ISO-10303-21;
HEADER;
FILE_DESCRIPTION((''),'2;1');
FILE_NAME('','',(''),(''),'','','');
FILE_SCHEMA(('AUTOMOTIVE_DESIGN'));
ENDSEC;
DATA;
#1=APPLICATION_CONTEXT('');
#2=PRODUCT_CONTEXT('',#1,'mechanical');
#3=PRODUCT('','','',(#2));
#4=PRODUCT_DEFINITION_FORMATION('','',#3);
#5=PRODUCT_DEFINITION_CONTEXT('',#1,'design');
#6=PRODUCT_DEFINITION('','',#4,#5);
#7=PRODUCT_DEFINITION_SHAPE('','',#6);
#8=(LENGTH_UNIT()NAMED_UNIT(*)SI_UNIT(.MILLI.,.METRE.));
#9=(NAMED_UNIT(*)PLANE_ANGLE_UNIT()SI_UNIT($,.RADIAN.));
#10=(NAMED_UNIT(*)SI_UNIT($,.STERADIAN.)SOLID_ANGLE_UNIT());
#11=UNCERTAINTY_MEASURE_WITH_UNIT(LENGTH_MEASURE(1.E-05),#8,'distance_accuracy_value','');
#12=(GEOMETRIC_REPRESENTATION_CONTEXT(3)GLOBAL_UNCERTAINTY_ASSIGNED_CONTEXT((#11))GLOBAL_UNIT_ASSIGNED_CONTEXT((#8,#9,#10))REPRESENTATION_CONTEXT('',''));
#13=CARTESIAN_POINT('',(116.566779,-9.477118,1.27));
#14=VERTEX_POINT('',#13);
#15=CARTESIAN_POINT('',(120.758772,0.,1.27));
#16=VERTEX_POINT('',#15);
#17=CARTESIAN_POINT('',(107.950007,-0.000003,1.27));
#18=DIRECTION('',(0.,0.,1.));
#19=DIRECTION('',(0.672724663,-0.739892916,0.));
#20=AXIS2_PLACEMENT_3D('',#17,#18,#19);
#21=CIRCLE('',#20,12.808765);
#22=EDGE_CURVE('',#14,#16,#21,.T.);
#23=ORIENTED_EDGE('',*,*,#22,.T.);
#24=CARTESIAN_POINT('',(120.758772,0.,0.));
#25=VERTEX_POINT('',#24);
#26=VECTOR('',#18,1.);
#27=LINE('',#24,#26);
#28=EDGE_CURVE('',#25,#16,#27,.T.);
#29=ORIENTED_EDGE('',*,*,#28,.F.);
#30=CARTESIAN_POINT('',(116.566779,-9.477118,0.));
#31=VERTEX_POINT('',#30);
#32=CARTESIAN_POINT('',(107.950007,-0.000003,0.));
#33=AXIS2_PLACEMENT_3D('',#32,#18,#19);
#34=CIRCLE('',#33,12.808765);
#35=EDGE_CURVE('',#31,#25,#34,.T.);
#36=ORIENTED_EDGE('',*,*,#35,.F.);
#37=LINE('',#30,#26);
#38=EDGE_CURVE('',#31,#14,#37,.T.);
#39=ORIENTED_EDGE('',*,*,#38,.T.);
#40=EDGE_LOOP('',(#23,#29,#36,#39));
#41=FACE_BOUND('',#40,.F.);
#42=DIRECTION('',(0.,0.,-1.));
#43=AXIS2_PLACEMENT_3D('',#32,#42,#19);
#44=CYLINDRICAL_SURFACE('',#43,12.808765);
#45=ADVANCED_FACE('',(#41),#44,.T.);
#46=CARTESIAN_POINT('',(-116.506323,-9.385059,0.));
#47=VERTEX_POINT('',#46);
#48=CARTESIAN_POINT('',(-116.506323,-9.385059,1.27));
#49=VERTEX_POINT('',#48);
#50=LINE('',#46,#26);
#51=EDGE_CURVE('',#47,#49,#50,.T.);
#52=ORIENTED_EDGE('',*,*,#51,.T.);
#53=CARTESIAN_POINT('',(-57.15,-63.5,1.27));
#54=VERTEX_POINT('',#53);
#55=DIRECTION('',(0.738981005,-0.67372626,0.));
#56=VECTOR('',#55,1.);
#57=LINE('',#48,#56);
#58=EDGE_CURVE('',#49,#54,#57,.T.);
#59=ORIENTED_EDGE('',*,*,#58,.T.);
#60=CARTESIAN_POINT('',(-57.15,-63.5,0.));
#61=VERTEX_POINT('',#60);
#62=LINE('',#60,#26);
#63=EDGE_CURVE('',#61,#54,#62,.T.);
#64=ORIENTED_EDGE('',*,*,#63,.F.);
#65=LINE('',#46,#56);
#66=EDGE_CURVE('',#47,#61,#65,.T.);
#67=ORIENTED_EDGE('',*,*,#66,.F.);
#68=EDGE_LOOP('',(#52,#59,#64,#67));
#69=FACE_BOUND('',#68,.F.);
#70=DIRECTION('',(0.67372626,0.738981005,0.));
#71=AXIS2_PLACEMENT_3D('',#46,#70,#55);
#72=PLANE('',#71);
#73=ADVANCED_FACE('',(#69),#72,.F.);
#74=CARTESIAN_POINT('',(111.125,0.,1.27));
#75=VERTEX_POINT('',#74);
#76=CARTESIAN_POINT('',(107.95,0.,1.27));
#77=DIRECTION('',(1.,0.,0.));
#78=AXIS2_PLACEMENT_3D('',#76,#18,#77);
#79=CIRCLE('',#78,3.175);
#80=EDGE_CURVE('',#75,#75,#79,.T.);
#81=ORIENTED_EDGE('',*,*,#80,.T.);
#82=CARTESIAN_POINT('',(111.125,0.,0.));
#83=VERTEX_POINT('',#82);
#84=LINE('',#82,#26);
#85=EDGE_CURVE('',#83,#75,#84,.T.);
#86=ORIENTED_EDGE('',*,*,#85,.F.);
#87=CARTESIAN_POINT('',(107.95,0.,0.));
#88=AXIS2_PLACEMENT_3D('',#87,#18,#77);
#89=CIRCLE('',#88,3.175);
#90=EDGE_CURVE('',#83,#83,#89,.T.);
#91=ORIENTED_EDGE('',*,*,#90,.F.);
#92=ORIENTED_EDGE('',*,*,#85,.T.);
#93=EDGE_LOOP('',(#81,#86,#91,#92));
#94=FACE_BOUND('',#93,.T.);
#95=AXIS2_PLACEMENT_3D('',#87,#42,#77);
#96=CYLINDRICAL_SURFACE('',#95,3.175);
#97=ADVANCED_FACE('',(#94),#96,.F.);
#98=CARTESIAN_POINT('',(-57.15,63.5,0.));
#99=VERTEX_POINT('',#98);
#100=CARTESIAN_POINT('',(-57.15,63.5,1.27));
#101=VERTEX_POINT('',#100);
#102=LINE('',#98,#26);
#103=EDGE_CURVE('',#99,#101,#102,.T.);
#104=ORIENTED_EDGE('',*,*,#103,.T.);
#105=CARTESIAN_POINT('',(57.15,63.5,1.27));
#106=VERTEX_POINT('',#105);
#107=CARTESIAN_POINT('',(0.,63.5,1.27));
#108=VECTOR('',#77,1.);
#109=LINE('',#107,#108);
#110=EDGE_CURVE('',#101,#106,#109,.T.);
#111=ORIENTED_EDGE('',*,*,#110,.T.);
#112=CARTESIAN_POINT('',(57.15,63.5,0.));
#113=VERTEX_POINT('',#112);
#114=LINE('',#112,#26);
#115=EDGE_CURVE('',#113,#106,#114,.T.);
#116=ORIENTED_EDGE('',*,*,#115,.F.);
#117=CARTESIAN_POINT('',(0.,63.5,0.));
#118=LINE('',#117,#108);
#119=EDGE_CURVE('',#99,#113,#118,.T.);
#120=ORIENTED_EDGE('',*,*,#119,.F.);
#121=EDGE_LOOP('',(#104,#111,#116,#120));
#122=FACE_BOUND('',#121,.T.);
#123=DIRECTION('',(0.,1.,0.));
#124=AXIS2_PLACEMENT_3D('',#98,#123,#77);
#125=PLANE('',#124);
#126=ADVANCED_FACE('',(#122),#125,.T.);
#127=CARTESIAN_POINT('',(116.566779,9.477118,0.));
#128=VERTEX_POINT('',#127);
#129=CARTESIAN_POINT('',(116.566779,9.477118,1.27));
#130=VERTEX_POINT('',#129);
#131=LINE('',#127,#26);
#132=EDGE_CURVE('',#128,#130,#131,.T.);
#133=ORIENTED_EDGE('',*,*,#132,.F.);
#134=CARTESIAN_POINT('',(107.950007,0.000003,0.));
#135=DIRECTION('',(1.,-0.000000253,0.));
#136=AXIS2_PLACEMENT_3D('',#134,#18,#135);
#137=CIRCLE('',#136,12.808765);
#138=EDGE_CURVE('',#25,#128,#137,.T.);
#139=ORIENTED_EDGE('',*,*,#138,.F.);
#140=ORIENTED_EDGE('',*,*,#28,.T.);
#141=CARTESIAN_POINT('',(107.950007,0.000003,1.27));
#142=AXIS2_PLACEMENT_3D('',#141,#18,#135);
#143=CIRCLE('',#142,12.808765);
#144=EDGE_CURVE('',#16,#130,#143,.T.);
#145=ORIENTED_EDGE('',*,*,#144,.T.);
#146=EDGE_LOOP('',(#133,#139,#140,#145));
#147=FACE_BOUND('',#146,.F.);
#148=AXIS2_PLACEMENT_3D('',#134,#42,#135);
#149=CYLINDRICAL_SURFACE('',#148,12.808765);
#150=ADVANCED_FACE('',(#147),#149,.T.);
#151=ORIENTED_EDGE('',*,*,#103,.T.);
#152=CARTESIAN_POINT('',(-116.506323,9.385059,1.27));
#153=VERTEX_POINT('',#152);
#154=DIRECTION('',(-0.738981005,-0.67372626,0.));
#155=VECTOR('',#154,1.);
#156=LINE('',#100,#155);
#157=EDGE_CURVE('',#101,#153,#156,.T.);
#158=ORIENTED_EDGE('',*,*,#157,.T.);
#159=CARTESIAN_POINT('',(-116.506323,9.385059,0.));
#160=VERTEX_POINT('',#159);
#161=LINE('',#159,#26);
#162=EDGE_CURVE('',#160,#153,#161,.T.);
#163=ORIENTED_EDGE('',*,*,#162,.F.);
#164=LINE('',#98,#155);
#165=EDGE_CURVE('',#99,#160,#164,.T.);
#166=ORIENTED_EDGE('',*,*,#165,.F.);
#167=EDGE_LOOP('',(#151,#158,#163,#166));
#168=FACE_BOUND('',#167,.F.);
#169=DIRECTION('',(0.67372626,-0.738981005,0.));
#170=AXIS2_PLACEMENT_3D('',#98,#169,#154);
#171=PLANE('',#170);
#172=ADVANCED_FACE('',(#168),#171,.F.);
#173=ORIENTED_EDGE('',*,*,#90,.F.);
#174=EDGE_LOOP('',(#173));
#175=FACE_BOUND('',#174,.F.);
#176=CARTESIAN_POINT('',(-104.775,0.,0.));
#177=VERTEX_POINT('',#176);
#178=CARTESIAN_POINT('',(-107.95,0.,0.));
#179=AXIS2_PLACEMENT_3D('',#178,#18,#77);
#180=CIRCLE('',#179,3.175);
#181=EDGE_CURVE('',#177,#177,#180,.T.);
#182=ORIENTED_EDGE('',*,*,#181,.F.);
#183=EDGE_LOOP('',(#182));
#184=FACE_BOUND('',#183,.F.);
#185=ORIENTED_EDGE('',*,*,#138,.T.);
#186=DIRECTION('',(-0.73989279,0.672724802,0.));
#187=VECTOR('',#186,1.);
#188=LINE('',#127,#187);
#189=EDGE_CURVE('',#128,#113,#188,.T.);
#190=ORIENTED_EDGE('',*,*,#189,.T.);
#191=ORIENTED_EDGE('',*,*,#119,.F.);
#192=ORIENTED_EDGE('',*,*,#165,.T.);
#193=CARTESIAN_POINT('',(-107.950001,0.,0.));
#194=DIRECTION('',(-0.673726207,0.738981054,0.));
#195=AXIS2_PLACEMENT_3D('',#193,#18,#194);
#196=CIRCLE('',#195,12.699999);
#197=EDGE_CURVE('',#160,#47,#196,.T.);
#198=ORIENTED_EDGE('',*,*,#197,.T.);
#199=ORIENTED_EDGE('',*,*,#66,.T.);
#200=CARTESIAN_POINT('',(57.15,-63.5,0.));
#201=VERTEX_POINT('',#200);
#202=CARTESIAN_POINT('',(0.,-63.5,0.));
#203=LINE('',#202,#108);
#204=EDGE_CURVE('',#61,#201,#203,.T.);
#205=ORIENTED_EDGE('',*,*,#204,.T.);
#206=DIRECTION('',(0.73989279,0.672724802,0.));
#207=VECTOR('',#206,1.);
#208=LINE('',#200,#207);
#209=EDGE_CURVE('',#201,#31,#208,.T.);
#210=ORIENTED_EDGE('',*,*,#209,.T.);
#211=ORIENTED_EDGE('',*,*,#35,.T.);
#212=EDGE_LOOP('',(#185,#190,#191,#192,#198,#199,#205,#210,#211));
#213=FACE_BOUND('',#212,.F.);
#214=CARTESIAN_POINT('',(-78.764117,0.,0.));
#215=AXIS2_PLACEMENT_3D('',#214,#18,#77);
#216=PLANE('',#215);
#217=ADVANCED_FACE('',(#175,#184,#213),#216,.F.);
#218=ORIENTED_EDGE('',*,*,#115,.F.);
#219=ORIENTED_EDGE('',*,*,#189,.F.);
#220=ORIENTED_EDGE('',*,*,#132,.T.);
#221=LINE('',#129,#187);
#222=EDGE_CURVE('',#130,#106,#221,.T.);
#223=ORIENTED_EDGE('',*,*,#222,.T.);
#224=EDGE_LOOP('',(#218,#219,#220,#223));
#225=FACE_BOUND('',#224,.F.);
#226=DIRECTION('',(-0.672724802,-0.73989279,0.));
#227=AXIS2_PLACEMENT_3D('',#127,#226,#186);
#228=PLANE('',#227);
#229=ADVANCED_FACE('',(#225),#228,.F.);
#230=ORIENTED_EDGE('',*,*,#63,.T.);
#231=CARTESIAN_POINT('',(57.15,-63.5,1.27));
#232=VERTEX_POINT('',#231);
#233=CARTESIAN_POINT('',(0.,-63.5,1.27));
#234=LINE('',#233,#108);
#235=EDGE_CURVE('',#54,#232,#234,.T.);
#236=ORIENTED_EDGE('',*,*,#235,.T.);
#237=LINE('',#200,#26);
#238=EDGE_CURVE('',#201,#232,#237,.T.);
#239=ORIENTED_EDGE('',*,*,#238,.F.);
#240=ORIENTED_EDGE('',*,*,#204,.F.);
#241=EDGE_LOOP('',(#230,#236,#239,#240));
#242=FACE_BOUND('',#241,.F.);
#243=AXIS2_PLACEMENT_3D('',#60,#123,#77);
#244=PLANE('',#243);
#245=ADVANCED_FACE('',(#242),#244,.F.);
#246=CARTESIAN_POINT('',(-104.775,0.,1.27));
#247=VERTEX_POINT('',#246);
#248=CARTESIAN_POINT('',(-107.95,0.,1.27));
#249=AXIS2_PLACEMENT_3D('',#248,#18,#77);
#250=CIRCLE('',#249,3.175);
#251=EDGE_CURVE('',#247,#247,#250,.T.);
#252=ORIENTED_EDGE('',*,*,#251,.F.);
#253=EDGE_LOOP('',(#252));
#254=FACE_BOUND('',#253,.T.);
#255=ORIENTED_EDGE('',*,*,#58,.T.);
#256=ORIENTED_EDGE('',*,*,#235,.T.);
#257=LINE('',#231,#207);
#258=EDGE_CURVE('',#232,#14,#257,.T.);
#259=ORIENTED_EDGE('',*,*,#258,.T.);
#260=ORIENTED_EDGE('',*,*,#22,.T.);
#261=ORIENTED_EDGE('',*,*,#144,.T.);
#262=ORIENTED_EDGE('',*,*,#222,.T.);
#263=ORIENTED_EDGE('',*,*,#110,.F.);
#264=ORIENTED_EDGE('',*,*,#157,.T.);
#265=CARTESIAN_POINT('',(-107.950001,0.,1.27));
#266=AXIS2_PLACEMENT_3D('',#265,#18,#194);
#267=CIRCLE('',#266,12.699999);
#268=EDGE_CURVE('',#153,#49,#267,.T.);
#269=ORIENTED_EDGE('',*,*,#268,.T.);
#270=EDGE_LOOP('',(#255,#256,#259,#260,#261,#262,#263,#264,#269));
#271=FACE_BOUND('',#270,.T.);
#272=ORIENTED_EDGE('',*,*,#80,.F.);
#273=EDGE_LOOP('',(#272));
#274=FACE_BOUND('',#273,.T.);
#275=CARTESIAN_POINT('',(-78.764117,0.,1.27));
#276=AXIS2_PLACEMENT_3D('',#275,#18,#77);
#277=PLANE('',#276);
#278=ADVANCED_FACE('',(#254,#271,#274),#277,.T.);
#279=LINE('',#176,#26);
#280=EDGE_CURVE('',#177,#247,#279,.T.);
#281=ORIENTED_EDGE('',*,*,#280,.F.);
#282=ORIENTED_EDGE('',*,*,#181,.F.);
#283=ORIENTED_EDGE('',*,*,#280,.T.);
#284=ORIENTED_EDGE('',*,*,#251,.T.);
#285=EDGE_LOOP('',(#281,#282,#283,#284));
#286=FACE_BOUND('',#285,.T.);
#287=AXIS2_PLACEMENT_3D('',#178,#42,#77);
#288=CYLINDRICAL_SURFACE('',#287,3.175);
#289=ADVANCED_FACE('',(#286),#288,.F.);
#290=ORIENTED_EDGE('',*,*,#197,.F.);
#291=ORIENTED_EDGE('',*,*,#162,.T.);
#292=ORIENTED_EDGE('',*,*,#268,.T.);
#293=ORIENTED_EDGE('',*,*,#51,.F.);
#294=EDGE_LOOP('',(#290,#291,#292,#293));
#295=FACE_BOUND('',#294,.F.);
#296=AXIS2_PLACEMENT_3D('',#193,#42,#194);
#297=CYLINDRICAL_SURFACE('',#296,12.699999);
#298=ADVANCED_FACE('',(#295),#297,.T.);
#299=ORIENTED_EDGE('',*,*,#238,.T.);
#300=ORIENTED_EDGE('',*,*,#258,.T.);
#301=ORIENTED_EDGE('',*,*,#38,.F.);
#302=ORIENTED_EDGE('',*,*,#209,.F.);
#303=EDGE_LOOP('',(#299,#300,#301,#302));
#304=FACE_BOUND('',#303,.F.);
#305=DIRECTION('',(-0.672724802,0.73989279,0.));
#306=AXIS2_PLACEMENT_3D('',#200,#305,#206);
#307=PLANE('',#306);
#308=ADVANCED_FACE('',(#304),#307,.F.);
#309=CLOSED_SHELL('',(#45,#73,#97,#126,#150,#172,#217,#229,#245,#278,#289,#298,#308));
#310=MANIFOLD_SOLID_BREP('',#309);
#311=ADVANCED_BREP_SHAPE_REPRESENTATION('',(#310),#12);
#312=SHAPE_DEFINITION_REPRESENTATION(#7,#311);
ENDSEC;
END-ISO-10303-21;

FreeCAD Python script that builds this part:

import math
import FreeCAD as App
import Part
import Sketcher
from FreeCAD import Vector
Q = App.Units.Quantity

doc = App.newDocument("Part")
body = doc.addObject("PartDesign::Body", "Body")

sketch1 = doc.addObject("Sketcher::SketchObject", "Sketch")
body.addObject(sketch1)
sketch1.AttachmentSupport = (doc.XY_Plane, [""])
sketch1.MapMode = "FlatFace"
sketch1.addGeometry(Part.LineSegment(Vector(-116.506323, -9.385059, 0), Vector(-57.15, -63.5, 0)), False)
sketch1.addGeometry(Part.LineSegment(Vector(-57.15, -63.5, 0), Vector(57.15, -63.5, 0)), False)
sketch1.addGeometry(Part.LineSegment(Vector(57.15, -63.5, 0), Vector(116.566779, -9.477118, 0)), False)
sketch1.addGeometry(Part.ArcOfCircle(Part.Circle(Vector(107.950007, -0.000003, 0), Vector(0, 0, 1), 12.808765), math.radians(-47.722294), math.radians(0.000014)), False)
sketch1.addGeometry(Part.ArcOfCircle(Part.Circle(Vector(107.950007, 0.000003, 0), Vector(0, 0, 1), 12.808765), math.radians(-0.000014), math.radians(47.722294)), False)
sketch1.addGeometry(Part.LineSegment(Vector(116.566779, 9.477118, 0), Vector(57.15, 63.5, 0)), False)
sketch1.addGeometry(Part.LineSegment(Vector(57.15, 63.5, 0), Vector(-57.15, 63.5, 0)), False)
sketch1.addGeometry(Part.LineSegment(Vector(-57.15, 63.5, 0), Vector(-116.506323, 9.385059, 0)), False)
sketch1.addGeometry(Part.ArcOfCircle(Part.Circle(Vector(-107.950001, 0, 0), Vector(0, 0, 1), 12.699999), math.radians(132.355311), math.radians(227.644689)), False)
sketch1.addGeometry(Part.Circle(Vector(-107.95, 0, 0), Vector(0, 0, 1), 3.175), False)
sketch1.addGeometry(Part.Circle(Vector(107.95, 0, 0), Vector(0, 0, 1), 3.175), False)
sketch1.addConstraint(Sketcher.Constraint("Coincident", 0, 2, 1, 1))
sketch1.addConstraint(Sketcher.Constraint("Coincident", 1, 2, 2, 1))
sketch1.addConstraint(Sketcher.Constraint("Tangent", 2, 2, 3, 1))
sketch1.addConstraint(Sketcher.Constraint("Tangent", 3, 2, 4, 1))
sketch1.addConstraint(Sketcher.Constraint("Tangent", 4, 2, 5, 1))
sketch1.addConstraint(Sketcher.Constraint("Coincident", 5, 2, 6, 1))
sketch1.addConstraint(Sketcher.Constraint("Coincident", 6, 2, 7, 1))
sketch1.addConstraint(Sketcher.Constraint("Tangent", 7, 2, 8, 1))
sketch1.addConstraint(Sketcher.Constraint("Tangent", 8, 2, 0, 1))
sketch1.addConstraint(Sketcher.Constraint("Horizontal", 1))
sketch1.addConstraint(Sketcher.Constraint("Horizontal", 6))
sketch1.addConstraint(Sketcher.Constraint("Coincident", 9, 3, 8, 3))
sketch1.addConstraint(Sketcher.Constraint("Coincident", 10, 3, 3, 3))
sketch1.addConstraint(Sketcher.Constraint("Equal", 3, 4))
sketch1.addConstraint(Sketcher.Constraint("Equal", 9, 10))
sketch1.addConstraint(Sketcher.Constraint("Symmetric", 3, 3, 8, 3, -1, 1))
sketch1.addConstraint(Sketcher.Constraint("Symmetric", 0, 2, 5, 2, -1, 1))
sketch1.addConstraint(Sketcher.Constraint("Symmetric", 2, 2, 4, 2, -1))
sketch1.addConstraint(Sketcher.Constraint("PointOnObject", 3, 2, -1))
sketch1.addConstraint(Sketcher.Constraint("Vertical", 0, 2, 6, 2))
sketch1.addConstraint(Sketcher.Constraint("Radius", 8, Q("0.5 in")))
sketch1.addConstraint(Sketcher.Constraint("Diameter", 9, Q("0.25 in")))
sketch1.addConstraint(Sketcher.Constraint("DistanceX", 1, 1, 1, 2, Q("4.5 in")))
sketch1.addConstraint(Sketcher.Constraint("DistanceX", 9, 3, 0, 2, Q("2 in")))
sketch1.addConstraint(Sketcher.Constraint("DistanceY", 0, 2, 6, 2, Q("5 in")))
sketch1.addConstraint(Sketcher.Constraint("Radius", 3, 12.808765))
pad1 = doc.addObject("PartDesign::Pad", "Pad")
body.addObject(pad1)
pad1.Profile = sketch1
pad1.Length = Q("0.05 in")

doc.recompute()
